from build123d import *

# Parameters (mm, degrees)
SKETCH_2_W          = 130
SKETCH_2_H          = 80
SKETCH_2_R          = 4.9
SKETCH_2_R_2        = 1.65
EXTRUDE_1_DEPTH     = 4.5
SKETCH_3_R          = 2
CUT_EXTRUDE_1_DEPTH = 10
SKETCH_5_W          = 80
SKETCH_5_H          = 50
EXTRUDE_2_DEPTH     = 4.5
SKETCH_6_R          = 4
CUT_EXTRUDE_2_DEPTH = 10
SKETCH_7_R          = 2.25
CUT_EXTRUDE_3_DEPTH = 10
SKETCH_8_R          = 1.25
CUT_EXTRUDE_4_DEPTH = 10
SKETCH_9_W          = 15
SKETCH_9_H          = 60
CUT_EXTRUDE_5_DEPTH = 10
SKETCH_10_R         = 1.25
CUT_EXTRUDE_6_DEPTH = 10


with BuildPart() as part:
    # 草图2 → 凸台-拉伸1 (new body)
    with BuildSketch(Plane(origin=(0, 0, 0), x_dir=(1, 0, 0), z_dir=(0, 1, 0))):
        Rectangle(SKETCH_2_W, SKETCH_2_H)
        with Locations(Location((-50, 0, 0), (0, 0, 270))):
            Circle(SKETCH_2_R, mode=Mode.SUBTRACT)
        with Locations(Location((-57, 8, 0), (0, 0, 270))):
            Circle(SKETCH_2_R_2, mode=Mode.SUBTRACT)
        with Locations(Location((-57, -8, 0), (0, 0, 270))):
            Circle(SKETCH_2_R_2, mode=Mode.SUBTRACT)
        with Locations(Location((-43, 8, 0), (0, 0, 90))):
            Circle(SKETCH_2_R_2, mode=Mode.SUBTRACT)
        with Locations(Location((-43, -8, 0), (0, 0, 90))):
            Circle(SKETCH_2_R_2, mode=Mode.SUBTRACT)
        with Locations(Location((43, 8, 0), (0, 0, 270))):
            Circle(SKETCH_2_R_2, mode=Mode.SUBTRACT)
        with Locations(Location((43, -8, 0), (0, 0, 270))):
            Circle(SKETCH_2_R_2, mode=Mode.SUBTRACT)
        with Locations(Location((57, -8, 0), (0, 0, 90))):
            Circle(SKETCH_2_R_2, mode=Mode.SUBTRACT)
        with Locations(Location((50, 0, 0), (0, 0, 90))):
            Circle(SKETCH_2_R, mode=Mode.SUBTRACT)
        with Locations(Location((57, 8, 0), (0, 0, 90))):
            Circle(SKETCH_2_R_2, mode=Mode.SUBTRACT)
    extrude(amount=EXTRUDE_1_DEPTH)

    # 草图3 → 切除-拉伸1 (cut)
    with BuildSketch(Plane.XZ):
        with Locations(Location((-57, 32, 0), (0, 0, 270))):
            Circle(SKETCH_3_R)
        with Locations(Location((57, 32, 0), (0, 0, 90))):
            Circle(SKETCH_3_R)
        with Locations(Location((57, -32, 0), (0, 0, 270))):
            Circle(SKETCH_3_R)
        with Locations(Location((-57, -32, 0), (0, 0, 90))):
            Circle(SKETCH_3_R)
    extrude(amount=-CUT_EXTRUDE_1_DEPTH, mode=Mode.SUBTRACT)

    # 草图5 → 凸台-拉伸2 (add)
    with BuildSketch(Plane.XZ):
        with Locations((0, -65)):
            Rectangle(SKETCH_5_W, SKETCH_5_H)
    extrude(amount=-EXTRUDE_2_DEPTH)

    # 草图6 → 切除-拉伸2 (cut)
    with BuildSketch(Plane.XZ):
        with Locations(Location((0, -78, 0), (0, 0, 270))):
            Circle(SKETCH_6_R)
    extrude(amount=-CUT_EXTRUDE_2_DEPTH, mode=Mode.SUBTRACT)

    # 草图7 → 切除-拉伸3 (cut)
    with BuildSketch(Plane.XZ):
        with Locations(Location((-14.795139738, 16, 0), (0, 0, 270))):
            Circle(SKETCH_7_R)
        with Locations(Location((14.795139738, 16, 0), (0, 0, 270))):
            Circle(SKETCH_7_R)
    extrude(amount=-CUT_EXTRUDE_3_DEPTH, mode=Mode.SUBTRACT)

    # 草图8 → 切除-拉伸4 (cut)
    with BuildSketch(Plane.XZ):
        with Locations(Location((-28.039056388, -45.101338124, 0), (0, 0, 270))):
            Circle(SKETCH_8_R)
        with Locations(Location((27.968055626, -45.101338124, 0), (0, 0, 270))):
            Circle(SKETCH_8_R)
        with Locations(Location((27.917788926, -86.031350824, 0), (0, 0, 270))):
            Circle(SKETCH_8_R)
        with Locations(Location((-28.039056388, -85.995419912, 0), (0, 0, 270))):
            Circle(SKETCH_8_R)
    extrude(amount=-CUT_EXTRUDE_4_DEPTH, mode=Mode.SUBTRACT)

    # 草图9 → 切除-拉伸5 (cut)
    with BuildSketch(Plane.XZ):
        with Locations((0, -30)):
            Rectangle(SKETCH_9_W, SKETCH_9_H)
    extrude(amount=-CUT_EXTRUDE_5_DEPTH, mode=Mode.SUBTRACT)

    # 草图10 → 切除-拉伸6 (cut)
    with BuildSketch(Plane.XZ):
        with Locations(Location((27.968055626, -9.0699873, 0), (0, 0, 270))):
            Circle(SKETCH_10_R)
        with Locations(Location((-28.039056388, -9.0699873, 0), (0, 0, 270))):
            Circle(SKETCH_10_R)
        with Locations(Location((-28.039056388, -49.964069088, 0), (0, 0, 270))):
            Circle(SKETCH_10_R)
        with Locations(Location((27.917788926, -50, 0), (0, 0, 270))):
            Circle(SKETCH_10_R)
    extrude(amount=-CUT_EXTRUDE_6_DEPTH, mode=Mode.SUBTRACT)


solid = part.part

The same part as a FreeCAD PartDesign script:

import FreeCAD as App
import Part
import Sketcher

doc = App.newDocument("Part")
body = doc.addObject("PartDesign::Body", "Body")

sketch1 = body.newObject("Sketcher::SketchObject", "Sketch")
sketch1.AttachmentSupport = (doc.getObject("XZ_Plane"), [""])
sketch1.MapMode = "FlatFace"
sketch1.addGeometry([
    Part.LineSegment(App.Vector(-65, -40, 0), App.Vector(-65, 40, 0)),
    Part.LineSegment(App.Vector(-65, 40, 0), App.Vector(65, 40, 0)),
    Part.LineSegment(App.Vector(65, 40, 0), App.Vector(65, -40, 0)),
    Part.LineSegment(App.Vector(65, -40, 0), App.Vector(-65, -40, 0)),
    Part.Circle(App.Vector(-57, 8, 0), App.Vector(0, 0, 1), 1.6),
    Part.Circle(App.Vector(-43, 8, 0), App.Vector(0, 0, 1), 1.6),
    Part.Circle(App.Vector(43, 8, 0), App.Vector(0, 0, 1), 1.6),
    Part.Circle(App.Vector(57, 8, 0), App.Vector(0, 0, 1), 1.6),
    Part.Circle(App.Vector(-50, 0, 0), App.Vector(0, 0, 1), 4.9),
    Part.Circle(App.Vector(-57, -8, 0), App.Vector(0, 0, 1), 1.6),
    Part.Circle(App.Vector(-43, -8, 0), App.Vector(0, 0, 1), 1.6),
    Part.Circle(App.Vector(50, 0, 0), App.Vector(0, 0, 1), 4.9),
    Part.Circle(App.Vector(43, -8, 0), App.Vector(0, 0, 1), 1.6),
    Part.Circle(App.Vector(57, -8, 0), App.Vector(0, 0, 1), 1.6),
], False)
sketch1.addConstraint([
    Sketcher.Constraint("Coincident", 0, 2, 1, 1),
    Sketcher.Constraint("Coincident", 1, 2, 2, 1),
    Sketcher.Constraint("Coincident", 2, 2, 3, 1),
    Sketcher.Constraint("Coincident", 3, 2, 0, 1),
    Sketcher.Constraint("Vertical", 0),
    Sketcher.Constraint("Horizontal", 1),
    Sketcher.Constraint("Vertical", 2),
    Sketcher.Constraint("Horizontal", 3),
    Sketcher.Constraint("Equal", 4, 5),
    Sketcher.Constraint("Equal", 5, 6),
    Sketcher.Constraint("Equal", 6, 7),
    Sketcher.Constraint("Equal", 7, 9),
    Sketcher.Constraint("Equal", 9, 10),
    Sketcher.Constraint("Equal", 8, 11),
    Sketcher.Constraint("Equal", 10, 12),
    Sketcher.Constraint("Equal", 12, 13),
    Sketcher.Constraint("Symmetric", 7, 3, 9, 3, -1, 1),
    Sketcher.Constraint("Symmetric", 6, 3, 10, 3, -1, 1),
    Sketcher.Constraint("Symmetric", 8, 3, 11, 3, -1, 1),
    Sketcher.Constraint("Symmetric", 5, 3, 12, 3, -1, 1),
    Sketcher.Constraint("Symmetric", 4, 3, 13, 3, -1, 1),
    Sketcher.Constraint("Symmetric", 0, 2, 2, 2, -1, 1),
    Sketcher.Constraint("Symmetric", 5, 3, 6, 3, -2),
    Sketcher.Constraint("Symmetric", 4, 3, 7, 3, -2),
    Sketcher.Constraint("PointOnObject", 8, 3, -1),
    Sketcher.Constraint("Horizontal", 4, 3, 5, 3),
    Sketcher.Constraint("Diameter", 4, 3.3),
    Sketcher.Constraint("Diameter", 8, 9.8),
    Sketcher.Constraint("DistanceX", 1, 1, 1, 2, 130.0),
    Sketcher.Constraint("DistanceY", 0, 1, 0, 2, 80.0),
    Sketcher.Constraint("DistanceX", 4, 3, -1, 1, 57.0),
    Sketcher.Constraint("DistanceY", -1, 1, 4, 3, 8.0),
    Sketcher.Constraint("DistanceX", 5, 3, -1, 1, 43.0),
    Sketcher.Constraint("DistanceX", 8, 3, -1, 1, 50.0),
])
pad1 = body.newObject("PartDesign::Pad", "Pad")
pad1.Profile = sketch1
pad1.Length = 4.5
pad1.Reversed = True

sketch2 = body.newObject("Sketcher::SketchObject", "Sketch001")
sketch2.AttachmentSupport = (doc.getObject("XZ_Plane"), [""])
sketch2.MapMode = "FlatFace"
sketch2.addGeometry([
    Part.Circle(App.Vector(-57, 32, 0), App.Vector(0, 0, 1), 2),
    Part.Circle(App.Vector(57, 32, 0), App.Vector(0, 0, 1), 2),
    Part.Circle(App.Vector(57, -32, 0), App.Vector(0, 0, 1), 2),
    Part.Circle(App.Vector(-57, -32, 0), App.Vector(0, 0, 1), 2),
], False)
sketch2.addConstraint([
    Sketcher.Constraint("Equal", 0, 1),
    Sketcher.Constraint("Equal", 1, 2),
    Sketcher.Constraint("Equal", 2, 3),
    Sketcher.Constraint("Symmetric", 0, 3, 2, 3, -1, 1),
    Sketcher.Constraint("Symmetric", 1, 3, 3, 3, -1, 1),
    Sketcher.Constraint("Symmetric", 0, 3, 1, 3, -2),
    Sketcher.Constraint("Diameter", 0, 4.0),
    Sketcher.Constraint("DistanceX", 0, 3, -1, 1, 57.0),
    Sketcher.Constraint("DistanceY", -1, 1, 0, 3, 32.0),
])
pocket1 = body.newObject("PartDesign::Pocket", "Pocket")
pocket1.Profile = sketch2
pocket1.Length = 10

sketch3 = body.newObject("Sketcher::SketchObject", "Sketch002")
sketch3.AttachmentSupport = (doc.getObject("XZ_Plane"), [""])
sketch3.MapMode = "FlatFace"
sketch3.addGeometry([
    Part.LineSegment(App.Vector(-40, -40, 0), App.Vector(-40, -90, 0)),
    Part.LineSegment(App.Vector(-40, -90, 0), App.Vector(40, -90, 0)),
    Part.LineSegment(App.Vector(40, -90, 0), App.Vector(40, -40, 0)),
    Part.LineSegment(App.Vector(40, -40, 0), App.Vector(-40, -40, 0)),
], False)
sketch3.addConstraint([
    Sketcher.Constraint("Coincident", 0, 2, 1, 1),
    Sketcher.Constraint("Coincident", 1, 2, 2, 1),
    Sketcher.Constraint("Coincident", 2, 2, 3, 1),
    Sketcher.Constraint("Coincident", 3, 2, 0, 1),
    Sketcher.Constraint("Vertical", 0),
    Sketcher.Constraint("Horizontal", 1),
    Sketcher.Constraint("Vertical", 2),
    Sketcher.Constraint("Horizontal", 3),
    Sketcher.Constraint("DistanceX", 1, 1, 1, 2, 80.0),
    Sketcher.Constraint("DistanceY", 0, 2, 0, 1, 50.0),
    Sketcher.Constraint("DistanceX", 0, 2, -1, 1, 40.0),
    Sketcher.Constraint("DistanceY", 0, 2, -1, 1, 90.0),
])
pad2 = body.newObject("PartDesign::Pad", "Pad001")
pad2.Profile = sketch3
pad2.Length = 4.5
pad2.Reversed = True

sketch4 = body.newObject("Sketcher::SketchObject", "Sketch003")
sketch4.AttachmentSupport = (doc.getObject("XZ_Plane"), [""])
sketch4.MapMode = "FlatFace"
sketch4.addGeometry(Part.Circle(App.Vector(0, -78, 0), App.Vector(0, 0, 1), 4), False)
sketch4.addConstraint([
    Sketcher.Constraint("PointOnObject", 0, 3, -2),
    Sketcher.Constraint("Diameter", 0, 8.0),
    Sketcher.Constraint("DistanceY", 0, 3, -1, 1, 78.0),
])
pocket2 = body.newObject("PartDesign::Pocket", "Pocket001")
pocket2.Profile = sketch4
pocket2.Length = 10

sketch5 = body.newObject("Sketcher::SketchObject", "Sketch004")
sketch5.AttachmentSupport = (doc.getObject("XZ_Plane"), [""])
sketch5.MapMode = "FlatFace"
sketch5.addGeometry([
    Part.Circle(App.Vector(-14.8, 16, 0), App.Vector(0, 0, 1), 2.2),
    Part.Circle(App.Vector(14.8, 16, 0), App.Vector(0, 0, 1), 2.2),
], False)
sketch5.addConstraint([
    Sketcher.Constraint("Equal", 0, 1),
    Sketcher.Constraint("Symmetric", 0, 3, 1, 3, -2),
    Sketcher.Constraint("Diameter", 0, 4.5),
    Sketcher.Constraint("DistanceY", -1, 1, 0, 3, 16.0),
    Sketcher.Constraint("DistanceX", 0, 3, -1, 1, 14.79514),
])
pocket3 = body.newObject("PartDesign::Pocket", "Pocket002")
pocket3.Profile = sketch5
pocket3.Length = 10

sketch6 = body.newObject("Sketcher::SketchObject", "Sketch005")
sketch6.AttachmentSupport = (doc.getObject("XZ_Plane"), [""])
sketch6.MapMode = "FlatFace"
sketch6.addGeometry([
    Part.Circle(App.Vector(-28, -45.1, 0), App.Vector(0, 0, 1), 1.2),
    Part.Circle(App.Vector(28, -45.1, 0), App.Vector(0, 0, 1), 1.2),
    Part.Circle(App.Vector(27.9, -86, 0), App.Vector(0, 0, 1), 1.2),
    Part.Circle(App.Vector(-28, -86, 0), App.Vector(0, 0, 1), 1.2),
], False)
sketch6.addConstraint([
    Sketcher.Constraint("Equal", 0, 1),
    Sketcher.Constraint("Equal", 1, 2),
    Sketcher.Constraint("Equal", 2, 3),
    Sketcher.Constraint("Horizontal", 0, 3, 1, 3),
    Sketcher.Constraint("Vertical", 0, 3, 3, 3),
    Sketcher.Constraint("Diameter", 0, 2.5),
    Sketcher.Constraint("DistanceY", 0, 3, -1, 1, 45.101338),
    Sketcher.Constraint("DistanceX", -1, 1, 2, 3, 27.917789),
    Sketcher.Constraint("DistanceY", 2, 3, -1, 1, 86.031351),
    Sketcher.Constraint("DistanceY", 3, 3, -1, 1, 85.99542),
    Sketcher.Constraint("DistanceX", 0, 3, -1, 1, 28.039056),
    Sketcher.Constraint("DistanceX", -1, 1, 1, 3, 27.968056),
])
pocket4 = body.newObject("PartDesign::Pocket", "Pocket003")
pocket4.Profile = sketch6
pocket4.Length = 10

sketch7 = body.newObject("Sketcher::SketchObject", "Sketch006")
sketch7.AttachmentSupport = (doc.getObject("XZ_Plane"), [""])
sketch7.MapMode = "FlatFace"
sketch7.addGeometry([
    Part.LineSegment(App.Vector(-8, 0, 0), App.Vector(-8, -60, 0)),
    Part.LineSegment(App.Vector(-8, -60, 0), App.Vector(8, -60, 0)),
    Part.LineSegment(App.Vector(8, -60, 0), App.Vector(8, 0, 0)),
    Part.LineSegment(App.Vector(8, 0, 0), App.Vector(-8, 0, 0)),
], False)
sketch7.addConstraint([
    Sketcher.Constraint("Coincident", 0, 2, 1, 1),
    Sketcher.Constraint("Coincident", 1, 2, 2, 1),
    Sketcher.Constraint("Coincident", 2, 2, 3, 1),
    Sketcher.Constraint("Coincident", 3, 2, 0, 1),
    Sketcher.Constraint("Vertical", 0),
    Sketcher.Constraint("Horizontal", 1),
    Sketcher.Constraint("Vertical", 2),
    Sketcher.Constraint("Horizontal", 3),
    Sketcher.Constraint("Symmetric", 2, 2, 3, 2, -1, 1),
    Sketcher.Constraint("DistanceX", 1, 1, 1, 2, 15.0),
    Sketcher.Constraint("DistanceY", 0, 2, 0, 1, 60.0),
])
pocket5 = body.newObject("PartDesign::Pocket", "Pocket004")
pocket5.Profile = sketch7
pocket5.Length = 10

sketch8 = body.newObject("Sketcher::SketchObject", "Sketch007")
sketch8.AttachmentSupport = (doc.getObject("XZ_Plane"), [""])
sketch8.MapMode = "FlatFace"
sketch8.addGeometry([
    Part.Circle(App.Vector(28, -9.1, 0), App.Vector(0, 0, 1), 1.2),
    Part.Circle(App.Vector(-28, -9.1, 0), App.Vector(0, 0, 1), 1.2),
    Part.Circle(App.Vector(-28, -50, 0), App.Vector(0, 0, 1), 1.2),
    Part.Circle(App.Vector(27.9, -50, 0), App.Vector(0, 0, 1), 1.2),
], False)
sketch8.addConstraint([
    Sketcher.Constraint("Equal", 0, 1),
    Sketcher.Constraint("Equal", 1, 2),
    Sketcher.Constraint("Equal", 2, 3),
    Sketcher.Constraint("Horizontal", 0, 3, 1, 3),
    Sketcher.Constraint("Vertical", 1, 3, 2, 3),
    Sketcher.Constraint("Diameter", 0, 2.5),
    Sketcher.Constraint("DistanceY", 3, 3, -1, 1, 50.0),
    Sketcher.Constraint("DistanceY", 2, 3, -1, 1, 49.964069),
    Sketcher.Constraint("DistanceX", -1, 1, 3, 3, 27.917789),
    Sketcher.Constraint("DistanceY", 2, 3, 1, 3, 40.894082),
    Sketcher.Constraint("DistanceX", -1, 1, 0, 3, 27.968056),
    Sketcher.Constraint("DistanceX", 1, 3, -1, 1, 28.039056),
])
pocket6 = body.newObject("PartDesign::Pocket", "Pocket005")
pocket6.Profile = sketch8
pocket6.Length = 10

doc.recompute()
